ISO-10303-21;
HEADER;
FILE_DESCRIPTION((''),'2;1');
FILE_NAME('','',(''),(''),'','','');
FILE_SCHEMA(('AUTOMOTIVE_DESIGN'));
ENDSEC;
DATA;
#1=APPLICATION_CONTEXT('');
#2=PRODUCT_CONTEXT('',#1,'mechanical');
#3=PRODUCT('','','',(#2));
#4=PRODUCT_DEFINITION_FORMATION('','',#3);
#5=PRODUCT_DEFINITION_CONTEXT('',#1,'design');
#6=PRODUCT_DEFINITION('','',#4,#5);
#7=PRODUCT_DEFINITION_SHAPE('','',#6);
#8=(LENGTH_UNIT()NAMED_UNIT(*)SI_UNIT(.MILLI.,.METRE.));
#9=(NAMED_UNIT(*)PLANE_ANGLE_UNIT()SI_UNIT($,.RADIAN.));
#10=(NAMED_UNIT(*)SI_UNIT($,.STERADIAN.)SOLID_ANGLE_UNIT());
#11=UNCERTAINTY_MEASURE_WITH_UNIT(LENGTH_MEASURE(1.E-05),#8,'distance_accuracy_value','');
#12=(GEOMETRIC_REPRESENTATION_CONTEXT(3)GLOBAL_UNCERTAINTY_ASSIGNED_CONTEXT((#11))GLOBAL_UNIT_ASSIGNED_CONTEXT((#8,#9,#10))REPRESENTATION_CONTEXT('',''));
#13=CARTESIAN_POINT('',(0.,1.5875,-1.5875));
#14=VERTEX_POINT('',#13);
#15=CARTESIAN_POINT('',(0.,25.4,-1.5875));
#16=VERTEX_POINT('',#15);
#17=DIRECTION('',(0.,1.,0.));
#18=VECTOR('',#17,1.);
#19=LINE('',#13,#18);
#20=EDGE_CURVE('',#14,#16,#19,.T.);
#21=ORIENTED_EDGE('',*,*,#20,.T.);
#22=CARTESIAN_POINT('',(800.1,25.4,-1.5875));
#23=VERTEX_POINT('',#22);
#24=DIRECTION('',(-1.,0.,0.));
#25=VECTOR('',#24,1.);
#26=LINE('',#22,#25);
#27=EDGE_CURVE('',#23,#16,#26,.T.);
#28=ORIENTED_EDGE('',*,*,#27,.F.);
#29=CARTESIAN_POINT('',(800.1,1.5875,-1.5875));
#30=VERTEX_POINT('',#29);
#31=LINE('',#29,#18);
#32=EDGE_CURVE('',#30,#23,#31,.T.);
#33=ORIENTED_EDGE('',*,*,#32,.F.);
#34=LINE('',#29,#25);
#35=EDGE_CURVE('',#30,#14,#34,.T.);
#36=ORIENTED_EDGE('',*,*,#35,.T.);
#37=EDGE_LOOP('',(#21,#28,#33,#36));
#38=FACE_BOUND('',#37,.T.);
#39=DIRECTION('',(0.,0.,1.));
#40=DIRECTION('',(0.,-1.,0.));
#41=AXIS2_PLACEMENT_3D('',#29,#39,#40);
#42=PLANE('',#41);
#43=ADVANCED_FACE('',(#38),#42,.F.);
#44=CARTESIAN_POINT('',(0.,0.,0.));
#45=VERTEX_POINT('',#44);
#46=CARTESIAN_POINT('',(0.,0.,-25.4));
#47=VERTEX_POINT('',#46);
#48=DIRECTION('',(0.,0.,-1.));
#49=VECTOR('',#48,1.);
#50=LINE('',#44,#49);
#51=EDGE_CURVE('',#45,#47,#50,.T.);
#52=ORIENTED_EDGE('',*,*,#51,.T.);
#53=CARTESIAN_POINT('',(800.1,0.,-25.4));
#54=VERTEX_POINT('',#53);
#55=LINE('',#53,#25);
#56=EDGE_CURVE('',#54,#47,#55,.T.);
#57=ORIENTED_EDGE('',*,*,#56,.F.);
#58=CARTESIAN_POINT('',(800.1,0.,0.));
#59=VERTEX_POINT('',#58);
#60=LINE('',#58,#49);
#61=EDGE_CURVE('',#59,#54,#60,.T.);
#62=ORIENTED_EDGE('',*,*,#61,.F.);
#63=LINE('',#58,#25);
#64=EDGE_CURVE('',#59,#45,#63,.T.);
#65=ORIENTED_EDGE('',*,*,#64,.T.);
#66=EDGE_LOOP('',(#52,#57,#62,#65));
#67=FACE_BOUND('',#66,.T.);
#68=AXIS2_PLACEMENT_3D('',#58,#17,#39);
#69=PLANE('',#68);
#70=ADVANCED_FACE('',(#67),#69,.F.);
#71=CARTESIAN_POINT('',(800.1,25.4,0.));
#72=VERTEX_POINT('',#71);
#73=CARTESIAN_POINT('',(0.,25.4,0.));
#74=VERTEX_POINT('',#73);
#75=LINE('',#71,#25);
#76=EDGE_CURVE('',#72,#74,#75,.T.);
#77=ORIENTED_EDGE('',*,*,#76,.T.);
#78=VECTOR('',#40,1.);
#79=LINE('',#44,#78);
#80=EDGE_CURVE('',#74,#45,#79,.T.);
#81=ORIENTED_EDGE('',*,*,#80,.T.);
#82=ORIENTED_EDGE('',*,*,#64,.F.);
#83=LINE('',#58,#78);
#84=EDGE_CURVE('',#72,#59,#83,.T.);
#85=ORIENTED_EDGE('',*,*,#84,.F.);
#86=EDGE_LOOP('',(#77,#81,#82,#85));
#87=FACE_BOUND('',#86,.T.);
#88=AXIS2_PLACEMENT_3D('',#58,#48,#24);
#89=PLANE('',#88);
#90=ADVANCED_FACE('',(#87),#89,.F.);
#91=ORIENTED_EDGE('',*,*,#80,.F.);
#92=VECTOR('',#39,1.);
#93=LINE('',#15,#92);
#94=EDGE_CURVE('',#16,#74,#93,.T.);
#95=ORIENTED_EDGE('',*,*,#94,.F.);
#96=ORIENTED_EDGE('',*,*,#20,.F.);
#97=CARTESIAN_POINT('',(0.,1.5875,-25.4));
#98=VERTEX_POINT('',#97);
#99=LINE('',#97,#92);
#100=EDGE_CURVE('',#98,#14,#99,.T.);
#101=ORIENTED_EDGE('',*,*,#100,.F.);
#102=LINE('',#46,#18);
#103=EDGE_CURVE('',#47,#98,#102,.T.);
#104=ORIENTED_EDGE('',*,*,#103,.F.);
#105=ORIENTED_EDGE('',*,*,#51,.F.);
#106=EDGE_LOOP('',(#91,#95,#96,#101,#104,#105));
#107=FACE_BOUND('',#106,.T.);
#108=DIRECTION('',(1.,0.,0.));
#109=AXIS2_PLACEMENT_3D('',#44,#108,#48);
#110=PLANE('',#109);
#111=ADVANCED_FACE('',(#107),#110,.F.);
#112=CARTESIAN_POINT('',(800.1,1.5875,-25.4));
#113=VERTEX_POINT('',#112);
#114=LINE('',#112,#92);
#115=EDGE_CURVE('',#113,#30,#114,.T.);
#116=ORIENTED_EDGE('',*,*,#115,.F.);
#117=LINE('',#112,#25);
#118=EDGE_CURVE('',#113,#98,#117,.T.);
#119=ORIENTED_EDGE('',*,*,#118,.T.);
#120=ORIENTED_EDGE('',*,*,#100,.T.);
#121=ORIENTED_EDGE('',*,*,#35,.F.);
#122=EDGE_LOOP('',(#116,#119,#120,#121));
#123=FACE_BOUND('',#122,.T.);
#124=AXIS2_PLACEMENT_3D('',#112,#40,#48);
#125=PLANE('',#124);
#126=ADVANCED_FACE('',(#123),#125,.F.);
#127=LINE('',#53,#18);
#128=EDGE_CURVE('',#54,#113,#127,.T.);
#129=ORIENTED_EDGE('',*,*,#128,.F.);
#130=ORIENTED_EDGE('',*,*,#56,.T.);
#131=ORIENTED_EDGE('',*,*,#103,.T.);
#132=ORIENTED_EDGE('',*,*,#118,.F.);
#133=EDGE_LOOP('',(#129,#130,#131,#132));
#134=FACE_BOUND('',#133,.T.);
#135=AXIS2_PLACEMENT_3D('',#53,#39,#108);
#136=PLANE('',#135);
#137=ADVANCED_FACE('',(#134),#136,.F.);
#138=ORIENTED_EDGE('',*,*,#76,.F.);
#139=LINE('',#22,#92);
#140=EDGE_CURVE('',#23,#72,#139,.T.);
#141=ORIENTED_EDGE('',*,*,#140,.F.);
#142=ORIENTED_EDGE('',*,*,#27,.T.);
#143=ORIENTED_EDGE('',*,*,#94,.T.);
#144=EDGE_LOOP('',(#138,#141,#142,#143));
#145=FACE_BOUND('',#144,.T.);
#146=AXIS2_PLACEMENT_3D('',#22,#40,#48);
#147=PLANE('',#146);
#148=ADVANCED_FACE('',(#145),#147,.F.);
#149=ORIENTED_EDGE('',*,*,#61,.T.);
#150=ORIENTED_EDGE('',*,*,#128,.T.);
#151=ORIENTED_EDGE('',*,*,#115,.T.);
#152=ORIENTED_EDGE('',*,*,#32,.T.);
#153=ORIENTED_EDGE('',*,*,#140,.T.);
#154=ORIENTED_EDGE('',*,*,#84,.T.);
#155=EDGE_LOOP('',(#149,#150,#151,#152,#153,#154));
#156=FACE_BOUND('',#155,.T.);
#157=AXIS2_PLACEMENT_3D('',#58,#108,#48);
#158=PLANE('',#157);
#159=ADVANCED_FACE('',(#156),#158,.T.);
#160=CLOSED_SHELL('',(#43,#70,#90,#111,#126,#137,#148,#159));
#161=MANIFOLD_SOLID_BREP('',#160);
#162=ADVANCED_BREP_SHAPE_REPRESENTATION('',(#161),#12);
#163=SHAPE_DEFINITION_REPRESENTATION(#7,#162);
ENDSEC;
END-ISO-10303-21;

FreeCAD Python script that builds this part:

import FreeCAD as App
import Part
import Sketcher
from FreeCAD import Vector
Q = App.Units.Quantity


def add_polygon(sketch, points):
    """Adds a closed chain of lines whose ends are joined by coincident constraints."""
    first, n = sketch.GeometryCount, len(points)
    for a, b in zip(points, points[1:] + points[:1]):
        sketch.addGeometry(Part.LineSegment(App.Vector(*a, 0), App.Vector(*b, 0)), False)
    for i in range(n):
        sketch.addConstraint(Sketcher.Constraint("Coincident", first + i, 2, first + (i + 1) % n, 1))

doc = App.newDocument("Part")
body = doc.addObject("PartDesign::Body", "Body")

sketch1 = body.newObject("Sketcher::SketchObject", "Sketch")
sketch1.AttachmentSupport = (doc.getObject("YZ_Plane"), [""])
sketch1.MapMode = "FlatFace"
add_polygon(sketch1, [(25.4, 0), (0, 0), (0, -25.4), (1.5875, -25.4), (1.5875, -1.5875), (25.4, -1.5875)])
sketch1.addConstraint(Sketcher.Constraint("Horizontal", 0))
sketch1.addConstraint(Sketcher.Constraint("Vertical", 1))
sketch1.addConstraint(Sketcher.Constraint("Horizontal", 2))
sketch1.addConstraint(Sketcher.Constraint("Vertical", 3))
sketch1.addConstraint(Sketcher.Constraint("Horizontal", 4))
sketch1.addConstraint(Sketcher.Constraint("Vertical", 5))
sketch1.addConstraint(Sketcher.Constraint("Coincident", 0, 2, -1, 1))
sketch1.addConstraint(Sketcher.Constraint("Equal", 0, 1))
sketch1.addConstraint(Sketcher.Constraint("Equal", 4, 3))
sketch1.addConstraint(Sketcher.Constraint("DistanceX", 0, 2, 0, 1, Q("1 in")))
sketch1.addConstraint(Sketcher.Constraint("DistanceX", 2, 1, 2, 2, Q("0.0625 in")))
pad1 = body.newObject("PartDesign::Pad", "Pad")
pad1.Profile = sketch1
pad1.Length = Q("31.5 in")

doc.recompute()
